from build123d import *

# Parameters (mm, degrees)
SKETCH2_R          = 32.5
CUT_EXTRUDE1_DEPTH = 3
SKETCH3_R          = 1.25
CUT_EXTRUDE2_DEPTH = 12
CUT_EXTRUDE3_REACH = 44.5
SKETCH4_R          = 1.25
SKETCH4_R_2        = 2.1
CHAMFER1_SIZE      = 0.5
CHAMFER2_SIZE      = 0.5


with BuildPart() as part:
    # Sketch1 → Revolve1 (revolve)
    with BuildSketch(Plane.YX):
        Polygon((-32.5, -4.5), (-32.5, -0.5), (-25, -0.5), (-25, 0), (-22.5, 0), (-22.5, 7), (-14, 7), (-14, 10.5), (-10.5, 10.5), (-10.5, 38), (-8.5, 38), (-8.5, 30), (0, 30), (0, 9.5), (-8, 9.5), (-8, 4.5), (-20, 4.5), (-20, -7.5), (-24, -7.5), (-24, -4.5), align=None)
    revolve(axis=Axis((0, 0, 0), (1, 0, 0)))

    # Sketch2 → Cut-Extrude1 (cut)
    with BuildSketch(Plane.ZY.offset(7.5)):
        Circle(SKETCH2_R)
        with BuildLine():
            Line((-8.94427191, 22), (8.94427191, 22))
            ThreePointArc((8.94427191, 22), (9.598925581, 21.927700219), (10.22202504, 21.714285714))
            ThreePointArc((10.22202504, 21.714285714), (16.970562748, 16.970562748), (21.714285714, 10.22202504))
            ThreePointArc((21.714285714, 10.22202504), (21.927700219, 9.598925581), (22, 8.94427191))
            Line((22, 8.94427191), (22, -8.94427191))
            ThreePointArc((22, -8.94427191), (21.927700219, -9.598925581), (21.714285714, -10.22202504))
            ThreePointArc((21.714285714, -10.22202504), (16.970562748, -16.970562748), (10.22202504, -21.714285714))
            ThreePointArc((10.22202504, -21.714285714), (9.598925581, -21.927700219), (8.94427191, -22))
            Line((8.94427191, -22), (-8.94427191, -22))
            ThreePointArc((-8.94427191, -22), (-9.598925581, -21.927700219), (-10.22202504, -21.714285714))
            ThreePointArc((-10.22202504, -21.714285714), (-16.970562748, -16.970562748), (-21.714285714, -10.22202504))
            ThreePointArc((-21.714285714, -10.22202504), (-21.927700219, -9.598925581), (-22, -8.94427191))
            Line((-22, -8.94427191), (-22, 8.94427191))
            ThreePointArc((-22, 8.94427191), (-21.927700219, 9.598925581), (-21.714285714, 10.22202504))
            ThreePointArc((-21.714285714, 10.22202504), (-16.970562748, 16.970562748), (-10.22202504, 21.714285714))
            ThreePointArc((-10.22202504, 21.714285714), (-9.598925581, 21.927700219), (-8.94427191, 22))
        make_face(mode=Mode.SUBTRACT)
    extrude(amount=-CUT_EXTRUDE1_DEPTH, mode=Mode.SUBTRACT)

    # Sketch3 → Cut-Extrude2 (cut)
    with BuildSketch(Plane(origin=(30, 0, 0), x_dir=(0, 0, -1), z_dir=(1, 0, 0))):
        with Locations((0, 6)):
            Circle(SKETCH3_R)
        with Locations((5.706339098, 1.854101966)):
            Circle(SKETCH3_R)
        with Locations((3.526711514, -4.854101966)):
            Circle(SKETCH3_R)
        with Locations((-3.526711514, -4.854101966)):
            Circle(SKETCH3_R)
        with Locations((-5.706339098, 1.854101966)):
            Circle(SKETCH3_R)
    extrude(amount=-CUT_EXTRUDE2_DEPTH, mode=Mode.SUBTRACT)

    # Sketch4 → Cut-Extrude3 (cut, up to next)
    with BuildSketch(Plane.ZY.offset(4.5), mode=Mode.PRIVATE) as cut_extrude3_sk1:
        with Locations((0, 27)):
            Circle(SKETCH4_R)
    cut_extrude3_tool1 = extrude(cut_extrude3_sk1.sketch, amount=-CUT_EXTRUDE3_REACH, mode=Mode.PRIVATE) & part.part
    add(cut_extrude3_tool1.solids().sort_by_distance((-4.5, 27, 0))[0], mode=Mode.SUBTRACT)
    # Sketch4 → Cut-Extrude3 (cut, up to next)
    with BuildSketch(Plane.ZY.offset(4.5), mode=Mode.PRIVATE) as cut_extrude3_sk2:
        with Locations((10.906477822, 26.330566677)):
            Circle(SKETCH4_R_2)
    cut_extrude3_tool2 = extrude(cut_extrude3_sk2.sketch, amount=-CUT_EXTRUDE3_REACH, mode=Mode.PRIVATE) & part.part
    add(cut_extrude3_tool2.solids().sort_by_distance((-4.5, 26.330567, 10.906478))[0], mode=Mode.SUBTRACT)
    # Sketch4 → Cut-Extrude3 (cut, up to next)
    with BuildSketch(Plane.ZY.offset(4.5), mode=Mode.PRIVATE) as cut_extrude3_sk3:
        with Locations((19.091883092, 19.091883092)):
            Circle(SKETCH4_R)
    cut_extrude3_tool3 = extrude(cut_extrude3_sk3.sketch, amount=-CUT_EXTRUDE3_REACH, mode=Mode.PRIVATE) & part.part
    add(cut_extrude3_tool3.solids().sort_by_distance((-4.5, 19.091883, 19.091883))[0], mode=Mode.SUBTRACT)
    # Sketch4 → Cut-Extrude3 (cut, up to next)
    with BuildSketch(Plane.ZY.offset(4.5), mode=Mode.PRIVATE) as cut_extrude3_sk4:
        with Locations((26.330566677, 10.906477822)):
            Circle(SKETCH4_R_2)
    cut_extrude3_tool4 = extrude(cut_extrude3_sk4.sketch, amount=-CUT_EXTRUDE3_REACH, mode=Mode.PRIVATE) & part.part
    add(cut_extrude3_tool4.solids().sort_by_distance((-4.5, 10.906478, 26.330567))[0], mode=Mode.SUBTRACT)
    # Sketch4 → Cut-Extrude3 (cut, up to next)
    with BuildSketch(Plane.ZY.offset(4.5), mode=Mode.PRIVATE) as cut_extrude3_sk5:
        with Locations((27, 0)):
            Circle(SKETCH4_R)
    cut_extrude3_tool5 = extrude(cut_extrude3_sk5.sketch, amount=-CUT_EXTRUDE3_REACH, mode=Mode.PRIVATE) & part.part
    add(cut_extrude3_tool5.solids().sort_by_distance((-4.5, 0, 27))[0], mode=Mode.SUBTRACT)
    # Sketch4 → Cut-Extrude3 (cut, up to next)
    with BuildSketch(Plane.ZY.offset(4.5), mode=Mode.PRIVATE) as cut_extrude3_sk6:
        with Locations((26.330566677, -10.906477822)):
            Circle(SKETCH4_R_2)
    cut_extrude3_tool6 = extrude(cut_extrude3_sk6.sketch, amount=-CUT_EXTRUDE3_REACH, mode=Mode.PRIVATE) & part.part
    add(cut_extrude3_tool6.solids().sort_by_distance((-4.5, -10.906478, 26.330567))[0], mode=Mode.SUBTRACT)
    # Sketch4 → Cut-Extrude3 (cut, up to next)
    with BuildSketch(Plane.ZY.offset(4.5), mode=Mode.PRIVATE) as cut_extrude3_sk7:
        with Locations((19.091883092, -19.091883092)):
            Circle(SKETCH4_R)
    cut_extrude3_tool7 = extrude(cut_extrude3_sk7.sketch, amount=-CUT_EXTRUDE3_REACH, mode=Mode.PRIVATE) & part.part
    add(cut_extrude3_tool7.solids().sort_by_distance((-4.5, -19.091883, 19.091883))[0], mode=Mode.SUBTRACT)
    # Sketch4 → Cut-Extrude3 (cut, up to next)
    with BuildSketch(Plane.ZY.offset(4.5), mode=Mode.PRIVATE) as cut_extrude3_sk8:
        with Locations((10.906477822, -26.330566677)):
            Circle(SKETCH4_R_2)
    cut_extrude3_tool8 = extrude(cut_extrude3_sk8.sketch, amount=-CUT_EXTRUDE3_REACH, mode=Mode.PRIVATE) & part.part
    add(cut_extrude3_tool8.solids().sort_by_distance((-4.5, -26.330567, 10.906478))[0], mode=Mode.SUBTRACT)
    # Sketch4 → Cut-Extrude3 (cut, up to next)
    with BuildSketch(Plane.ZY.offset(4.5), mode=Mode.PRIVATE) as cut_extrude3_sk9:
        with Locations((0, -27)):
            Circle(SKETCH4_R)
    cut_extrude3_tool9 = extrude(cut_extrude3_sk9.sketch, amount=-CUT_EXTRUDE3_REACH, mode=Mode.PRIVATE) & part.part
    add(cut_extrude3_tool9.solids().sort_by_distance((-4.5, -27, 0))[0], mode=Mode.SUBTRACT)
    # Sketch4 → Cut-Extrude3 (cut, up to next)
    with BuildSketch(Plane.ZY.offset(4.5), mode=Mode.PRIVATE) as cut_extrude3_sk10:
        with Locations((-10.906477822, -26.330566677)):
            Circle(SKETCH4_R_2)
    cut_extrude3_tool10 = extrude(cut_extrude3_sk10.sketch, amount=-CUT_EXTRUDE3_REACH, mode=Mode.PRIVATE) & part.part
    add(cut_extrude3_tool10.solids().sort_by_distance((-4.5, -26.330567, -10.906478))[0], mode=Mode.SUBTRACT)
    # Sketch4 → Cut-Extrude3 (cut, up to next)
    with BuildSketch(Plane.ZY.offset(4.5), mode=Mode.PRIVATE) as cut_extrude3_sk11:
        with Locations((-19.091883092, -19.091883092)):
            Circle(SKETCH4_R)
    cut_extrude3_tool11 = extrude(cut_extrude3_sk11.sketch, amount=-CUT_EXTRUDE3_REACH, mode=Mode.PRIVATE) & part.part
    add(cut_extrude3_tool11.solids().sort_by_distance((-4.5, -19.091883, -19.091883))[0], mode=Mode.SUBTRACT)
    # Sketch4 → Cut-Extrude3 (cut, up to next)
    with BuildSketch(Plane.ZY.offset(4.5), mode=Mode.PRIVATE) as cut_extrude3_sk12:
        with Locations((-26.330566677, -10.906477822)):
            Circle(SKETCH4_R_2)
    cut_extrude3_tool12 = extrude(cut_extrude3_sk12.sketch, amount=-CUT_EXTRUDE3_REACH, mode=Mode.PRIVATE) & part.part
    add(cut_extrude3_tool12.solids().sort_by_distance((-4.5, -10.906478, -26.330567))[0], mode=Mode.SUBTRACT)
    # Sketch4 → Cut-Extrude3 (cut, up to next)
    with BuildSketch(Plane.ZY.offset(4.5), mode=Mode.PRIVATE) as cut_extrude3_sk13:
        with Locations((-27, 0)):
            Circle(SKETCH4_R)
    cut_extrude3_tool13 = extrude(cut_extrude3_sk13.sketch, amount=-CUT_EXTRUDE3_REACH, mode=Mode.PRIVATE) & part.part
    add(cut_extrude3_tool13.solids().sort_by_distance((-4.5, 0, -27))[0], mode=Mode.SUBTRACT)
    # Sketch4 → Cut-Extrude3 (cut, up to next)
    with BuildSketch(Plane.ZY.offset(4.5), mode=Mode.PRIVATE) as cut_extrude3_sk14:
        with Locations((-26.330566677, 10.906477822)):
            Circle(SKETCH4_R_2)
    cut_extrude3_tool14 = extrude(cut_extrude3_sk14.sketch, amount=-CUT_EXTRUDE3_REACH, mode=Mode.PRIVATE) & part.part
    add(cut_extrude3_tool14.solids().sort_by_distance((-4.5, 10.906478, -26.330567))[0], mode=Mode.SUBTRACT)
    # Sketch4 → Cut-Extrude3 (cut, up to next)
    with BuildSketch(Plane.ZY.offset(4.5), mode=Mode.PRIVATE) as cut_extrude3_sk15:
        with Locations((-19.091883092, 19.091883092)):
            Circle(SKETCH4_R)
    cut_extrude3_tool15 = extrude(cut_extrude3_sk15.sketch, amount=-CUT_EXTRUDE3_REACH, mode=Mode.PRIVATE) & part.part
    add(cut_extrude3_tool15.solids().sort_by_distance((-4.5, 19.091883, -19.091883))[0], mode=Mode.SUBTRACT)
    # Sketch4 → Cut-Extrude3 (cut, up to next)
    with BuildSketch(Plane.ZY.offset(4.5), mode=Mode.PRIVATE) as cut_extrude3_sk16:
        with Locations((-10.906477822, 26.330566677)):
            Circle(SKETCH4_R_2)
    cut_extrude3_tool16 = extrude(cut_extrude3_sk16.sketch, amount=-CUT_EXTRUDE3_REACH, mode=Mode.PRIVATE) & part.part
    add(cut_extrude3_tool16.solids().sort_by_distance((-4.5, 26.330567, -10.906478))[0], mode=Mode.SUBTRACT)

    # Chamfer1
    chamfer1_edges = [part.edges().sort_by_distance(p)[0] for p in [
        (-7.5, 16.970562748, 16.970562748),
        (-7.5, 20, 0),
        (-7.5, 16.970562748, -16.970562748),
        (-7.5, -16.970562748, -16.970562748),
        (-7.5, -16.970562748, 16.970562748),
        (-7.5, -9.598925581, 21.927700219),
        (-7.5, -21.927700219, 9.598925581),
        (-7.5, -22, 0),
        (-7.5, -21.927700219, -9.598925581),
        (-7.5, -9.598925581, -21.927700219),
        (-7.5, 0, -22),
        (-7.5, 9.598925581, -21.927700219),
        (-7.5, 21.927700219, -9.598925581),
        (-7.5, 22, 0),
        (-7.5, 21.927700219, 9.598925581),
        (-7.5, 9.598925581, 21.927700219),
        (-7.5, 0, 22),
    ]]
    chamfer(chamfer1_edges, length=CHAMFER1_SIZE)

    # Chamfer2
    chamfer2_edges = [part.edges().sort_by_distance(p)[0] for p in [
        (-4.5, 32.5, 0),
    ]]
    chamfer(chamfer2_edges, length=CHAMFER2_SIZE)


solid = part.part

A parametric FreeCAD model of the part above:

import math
import FreeCAD as App
import Part
import Sketcher


def edges_at(feature, points):
    """Names of the edges that pass closest to the given points."""
    edges = feature.Shape.Edges
    near = lambda p: min(range(len(edges)), key=lambda i: edges[i].distToShape(Part.Vertex(*p))[0])
    return sorted({f"Edge{near(p) + 1}" for p in points})

doc = App.newDocument("Part")
body = doc.addObject("PartDesign::Body", "Body")

sketch1 = doc.addObject("Sketcher::SketchObject", "Sketch")
body.addObject(sketch1)
sketch1.AttachmentSupport = (doc.XY_Plane, [""])
sketch1.MapMode = "FlatFace"
sketch1.addGeometry([
    Part.LineSegment(App.Vector(-0.5, -32.5, 0), App.Vector(-4.5, -32.5, 0)),
    Part.LineSegment(App.Vector(-4.5, -32.5, 0), App.Vector(-4.5, -24, 0)),
    Part.LineSegment(App.Vector(-4.5, -24, 0), App.Vector(-7.5, -24, 0)),
    Part.LineSegment(App.Vector(-7.5, -24, 0), App.Vector(-7.5, -20, 0)),
    Part.LineSegment(App.Vector(-7.5, -20, 0), App.Vector(4.5, -20, 0)),
    Part.LineSegment(App.Vector(4.5, -20, 0), App.Vector(4.5, -8, 0)),
    Part.LineSegment(App.Vector(4.5, -8, 0), App.Vector(9.5, -8, 0)),
    Part.LineSegment(App.Vector(9.5, -8, 0), App.Vector(9.5, 0, 0)),
    Part.LineSegment(App.Vector(9.5, 0, 0), App.Vector(30, 0, 0)),
    Part.LineSegment(App.Vector(30, 0, 0), App.Vector(30, -8.5, 0)),
    Part.LineSegment(App.Vector(30, -8.5, 0), App.Vector(38, -8.5, 0)),
    Part.LineSegment(App.Vector(38, -8.5, 0), App.Vector(38, -10.5, 0)),
    Part.LineSegment(App.Vector(38, -10.5, 0), App.Vector(10.5, -10.5, 0)),
    Part.LineSegment(App.Vector(10.5, -10.5, 0), App.Vector(10.5, -14, 0)),
    Part.LineSegment(App.Vector(10.5, -14, 0), App.Vector(7, -14, 0)),
    Part.LineSegment(App.Vector(7, -14, 0), App.Vector(7, -22.5, 0)),
    Part.LineSegment(App.Vector(7, -22.5, 0), App.Vector(0, -22.5, 0)),
    Part.LineSegment(App.Vector(0, -22.5, 0), App.Vector(0, -25, 0)),
    Part.LineSegment(App.Vector(0, -25, 0), App.Vector(-0.5, -25, 0)),
    Part.LineSegment(App.Vector(-0.5, -25, 0), App.Vector(-0.5, -32.5, 0)),
], False)
sketch1.addConstraint([
    Sketcher.Constraint("Coincident", 0, 2, 1, 1),
    Sketcher.Constraint("Coincident", 1, 2, 2, 1),
    Sketcher.Constraint("Coincident", 2, 2, 3, 1),
    Sketcher.Constraint("Coincident", 3, 2, 4, 1),
    Sketcher.Constraint("Coincident", 4, 2, 5, 1),
    Sketcher.Constraint("Coincident", 5, 2, 6, 1),
    Sketcher.Constraint("Coincident", 6, 2, 7, 1),
    Sketcher.Constraint("Coincident", 7, 2, 8, 1),
    Sketcher.Constraint("Coincident", 8, 2, 9, 1),
    Sketcher.Constraint("Coincident", 9, 2, 10, 1),
    Sketcher.Constraint("Coincident", 10, 2, 11, 1),
    Sketcher.Constraint("Coincident", 11, 2, 12, 1),
    Sketcher.Constraint("Coincident", 12, 2, 13, 1),
    Sketcher.Constraint("Coincident", 13, 2, 14, 1),
    Sketcher.Constraint("Coincident", 14, 2, 15, 1),
    Sketcher.Constraint("Coincident", 15, 2, 16, 1),
    Sketcher.Constraint("Coincident", 16, 2, 17, 1),
    Sketcher.Constraint("Coincident", 17, 2, 18, 1),
    Sketcher.Constraint("Coincident", 18, 2, 19, 1),
    Sketcher.Constraint("Coincident", 19, 2, 0, 1),
    Sketcher.Constraint("Horizontal", 0),
    Sketcher.Constraint("Vertical", 1),
    Sketcher.Constraint("Horizontal", 2),
    Sketcher.Constraint("Vertical", 3),
    Sketcher.Constraint("Horizontal", 4),
    Sketcher.Constraint("Vertical", 5),
    Sketcher.Constraint("Horizontal", 6),
    Sketcher.Constraint("Vertical", 7),
    Sketcher.Constraint("Horizontal", 8),
    Sketcher.Constraint("Vertical", 9),
    Sketcher.Constraint("Horizontal", 10),
    Sketcher.Constraint("Vertical", 11),
    Sketcher.Constraint("Horizontal", 12),
    Sketcher.Constraint("Vertical", 13),
    Sketcher.Constraint("Horizontal", 14),
    Sketcher.Constraint("Vertical", 15),
    Sketcher.Constraint("Horizontal", 16),
    Sketcher.Constraint("Vertical", 17),
    Sketcher.Constraint("Horizontal", 18),
    Sketcher.Constraint("Vertical", 19),
    Sketcher.Constraint("PointOnObject", 7, 2, -1),
    Sketcher.Constraint("PointOnObject", 16, 2, -2),
    Sketcher.Constraint("Equal", 0, 3),
    Sketcher.Constraint("Equal", 4, 5),
    Sketcher.Constraint("Equal", 10, 7),
    Sketcher.Constraint("Equal", 1, 9),
    Sketcher.Constraint("Equal", 14, 13),
    Sketcher.Constraint("Equal", 9, 15),
    Sketcher.Constraint("DistanceX", 0, 2, 0, 1, 4.0),
    Sketcher.Constraint("DistanceX", 2, 2, 2, 1, 3.0),
    Sketcher.Constraint("DistanceX", 4, 1, 4, 2, 12.0),
    Sketcher.Constraint("DistanceX", 6, 1, 6, 2, 5.0),
    Sketcher.Constraint("DistanceX", 10, 1, 10, 2, 8.0),
    Sketcher.Constraint("DistanceX", 16, 2, 16, 1, 7.0),
    Sketcher.Constraint("DistanceY", 11, 2, 11, 1, 2.0),
    Sketcher.Constraint("DistanceX", 8, 1, 8, 2, 20.5),
    Sketcher.Constraint("DistanceX", 12, 2, 12, 1, 27.5),
    Sketcher.Constraint("DistanceX", 14, 2, 14, 1, 3.5),
    Sketcher.Constraint("DistanceY", 1, 1, 1, 2, 8.5),
    Sketcher.Constraint("DistanceY", 17, 2, 17, 1, 2.5),
])
revolution = doc.addObject("PartDesign::Revolution", "Revolution")
body.addObject(revolution)
revolution.Profile = sketch1
revolution.ReferenceAxis = (sketch1, ["H_Axis"])
revolution.Angle = 360

sketch2 = doc.addObject("Sketcher::SketchObject", "Sketch001")
body.addObject(sketch2)
sketch2.AttachmentSupport = (doc.YZ_Plane, [""])
sketch2.MapMode = "FlatFace"
sketch2.AttachmentOffset = App.Placement(App.Vector(0, 0, -7.5), App.Rotation())
sketch2.addGeometry([
    Part.Circle(App.Vector(0, 0, 0), App.Vector(0, 0, 1), 32.5),
    Part.ArcOfCircle(Part.Circle(App.Vector(19, -8.9, 0), App.Vector(0, 0, 1), 3), math.radians(-25), math.radians(0)),
    Part.LineSegment(App.Vector(22, -8.9, 0), App.Vector(22, 8.9, 0)),
    Part.ArcOfCircle(Part.Circle(App.Vector(19, 8.9, 0), App.Vector(0, 0, 1), 3), math.radians(0), math.radians(25)),
    Part.ArcOfCircle(Part.Circle(App.Vector(0, 0, 0), App.Vector(0, 0, 1), 24), math.radians(25), math.radians(65)),
    Part.ArcOfCircle(Part.Circle(App.Vector(8.9, 19, 0), App.Vector(0, 0, 1), 3), math.radians(65), math.radians(90)),
    Part.LineSegment(App.Vector(8.9, 22, 0), App.Vector(-8.9, 22, 0)),
    Part.ArcOfCircle(Part.Circle(App.Vector(-8.9, 19, 0), App.Vector(0, 0, 1), 3), math.radians(90), math.radians(115)),
    Part.ArcOfCircle(Part.Circle(App.Vector(0, 0, 0), App.Vector(0, 0, 1), 24), math.radians(115), math.radians(155)),
    Part.ArcOfCircle(Part.Circle(App.Vector(-19, 8.9, 0), App.Vector(0, 0, 1), 3), math.radians(155), math.radians(180)),
    Part.LineSegment(App.Vector(-22, 8.9, 0), App.Vector(-22, -8.9, 0)),
    Part.ArcOfCircle(Part.Circle(App.Vector(-19, -8.9, 0), App.Vector(0, 0, 1), 3), math.radians(180), math.radians(205)),
    Part.ArcOfCircle(Part.Circle(App.Vector(0, 0, 0), App.Vector(0, 0, 1), 24), math.radians(-155), math.radians(-115)),
    Part.ArcOfCircle(Part.Circle(App.Vector(-8.9, -19, 0), App.Vector(0, 0, 1), 3), math.radians(-115), math.radians(-90)),
    Part.LineSegment(App.Vector(-8.9, -22, 0), App.Vector(8.9, -22, 0)),
    Part.ArcOfCircle(Part.Circle(App.Vector(8.9, -19, 0), App.Vector(0, 0, 1), 3), math.radians(-90), math.radians(-65)),
    Part.ArcOfCircle(Part.Circle(App.Vector(0, 0, 0), App.Vector(0, 0, 1), 24), math.radians(-65), math.radians(-25)),
], False)
sketch2.addConstraint([
    Sketcher.Constraint("Tangent", 1, 2, 2, 1),
    Sketcher.Constraint("Tangent", 2, 2, 3, 1),
    Sketcher.Constraint("Tangent", 3, 2, 4, 1),
    Sketcher.Constraint("Tangent", 4, 2, 5, 1),
    Sketcher.Constraint("Tangent", 5, 2, 6, 1),
    Sketcher.Constraint("Tangent", 6, 2, 7, 1),
    Sketcher.Constraint("Tangent", 7, 2, 8, 1),
    Sketcher.Constraint("Tangent", 8, 2, 9, 1),
    Sketcher.Constraint("Tangent", 9, 2, 10, 1),
    Sketcher.Constraint("Tangent", 10, 2, 11, 1),
    Sketcher.Constraint("Tangent", 11, 2, 12, 1),
    Sketcher.Constraint("Tangent", 12, 2, 13, 1),
    Sketcher.Constraint("Tangent", 13, 2, 14, 1),
    Sketcher.Constraint("Tangent", 14, 2, 15, 1),
    Sketcher.Constraint("Tangent", 15, 2, 16, 1),
    Sketcher.Constraint("Tangent", 16, 2, 1, 1),
    Sketcher.Constraint("Vertical", 2),
    Sketcher.Constraint("Horizontal", 6),
    Sketcher.Constraint("Vertical", 10),
    Sketcher.Constraint("Horizontal", 14),
    Sketcher.Constraint("Coincident", 0, 3, -1, 1),
    Sketcher.Constraint("Coincident", 4, 3, -1, 1),
    Sketcher.Constraint("Coincident", 8, 3, -1, 1),
    Sketcher.Constraint("Coincident", 12, 3, -1, 1),
    Sketcher.Constraint("Coincident", 16, 3, -1, 1),
    Sketcher.Constraint("Equal", 1, 3),
    Sketcher.Constraint("Equal", 3, 5),
    Sketcher.Constraint("Equal", 5, 7),
    Sketcher.Constraint("Equal", 4, 8),
    Sketcher.Constraint("Equal", 7, 9),
    Sketcher.Constraint("Equal", 9, 11),
    Sketcher.Constraint("Equal", 8, 12),
    Sketcher.Constraint("Equal", 11, 13),
    Sketcher.Constraint("Equal", 13, 15),
    Sketcher.Constraint("Equal", 12, 16),
    Sketcher.Constraint("Horizontal", 3, 3, 9, 3),
    Sketcher.Constraint("Vertical", 7, 3, 13, 3),
    Sketcher.Constraint("Equal", 14, 2),
    Sketcher.Constraint("Diameter", 0, 65.0),
    Sketcher.Constraint("Radius", 1, 3.0),
    Sketcher.Constraint("Radius", 4, 24.0),
    Sketcher.Constraint("DistanceX", -1, 1, 1, 3, 19.0),
])
pocket1 = doc.addObject("PartDesign::Pocket", "Pocket")
body.addObject(pocket1)
pocket1.Profile = sketch2
pocket1.Length = 3
pocket1.Reversed = True

sketch3 = doc.addObject("Sketcher::SketchObject", "Sketch002")
body.addObject(sketch3)
sketch3.AttachmentSupport = (doc.YZ_Plane, [""])
sketch3.MapMode = "FlatFace"
sketch3.AttachmentOffset = App.Placement(App.Vector(0, 0, 30), App.Rotation())
sketch3.addGeometry([
    Part.Circle(App.Vector(6, 0, 0), App.Vector(0, 0, 1), 1.2),
    Part.Circle(App.Vector(1.9, -5.7, 0), App.Vector(0, 0, 1), 1.2),
    Part.Circle(App.Vector(-4.9, -3.5, 0), App.Vector(0, 0, 1), 1.2),
    Part.Circle(App.Vector(-4.9, 3.5, 0), App.Vector(0, 0, 1), 1.2),
    Part.Circle(App.Vector(1.9, 5.7, 0), App.Vector(0, 0, 1), 1.2),
], False)
sketch3.addConstraint([
    Sketcher.Constraint("Equal", 0, 1),
    Sketcher.Constraint("Equal", 1, 2),
    Sketcher.Constraint("Equal", 2, 3),
    Sketcher.Constraint("Equal", 3, 4),
    Sketcher.Constraint("Symmetric", 2, 3, 3, 3, -1),
    Sketcher.Constraint("Symmetric", 1, 3, 4, 3, -1),
    Sketcher.Constraint("PointOnObject", 0, 3, -1),
    Sketcher.Constraint("Diameter", 0, 2.5),
    Sketcher.Constraint("DistanceX", -1, 1, 0, 3, 6.0),
    Sketcher.Constraint("DistanceX", -1, 1, 1, 3, 1.854102),
    Sketcher.Constraint("DistanceX", 2, 3, -1, 1, 4.854102),
    Sketcher.Constraint("DistanceY", 1, 3, -1, 1, 5.706339),
    Sketcher.Constraint("DistanceY", 2, 3, -1, 1, 3.526712),
])
pocket2 = doc.addObject("PartDesign::Pocket", "Pocket001")
body.addObject(pocket2)
pocket2.Profile = sketch3
pocket2.Length = 12

sketch4 = doc.addObject("Sketcher::SketchObject", "Sketch003")
body.addObject(sketch4)
sketch4.AttachmentSupport = (doc.YZ_Plane, [""])
sketch4.MapMode = "FlatFace"
sketch4.AttachmentOffset = App.Placement(App.Vector(0, 0, -4.5), App.Rotation())
sketch4.addGeometry(Part.Circle(App.Vector(27, 0, 0), App.Vector(0, 0, 1), 1.2), False)
sketch4.addConstraint([
    Sketcher.Constraint("PointOnObject", 0, 3, -1),
    Sketcher.Constraint("Diameter", 0, 2.5),
    Sketcher.Constraint("DistanceX", -1, 1, 0, 3, 27.0),
])
pocket3 = doc.addObject("PartDesign::Pocket", "Pocket002")
body.addObject(pocket3)
pocket3.Profile = sketch4
pocket3.Type = "UpToFirst"
pocket3.Reversed = True

sketch5 = doc.addObject("Sketcher::SketchObject", "Sketch004")
body.addObject(sketch5)
sketch5.AttachmentSupport = (doc.YZ_Plane, [""])
sketch5.MapMode = "FlatFace"
sketch5.AttachmentOffset = App.Placement(App.Vector(0, 0, -4.5), App.Rotation())
sketch5.addGeometry(Part.Circle(App.Vector(26.3, 10.9, 0), App.Vector(0, 0, 1), 2.1), False)
sketch5.addConstraint([
    Sketcher.Constraint("Diameter", 0, 4.2),
    Sketcher.Constraint("DistanceX", -1, 1, 0, 3, 26.330567),
    Sketcher.Constraint("DistanceY", -1, 1, 0, 3, 10.906478),
])
pocket4 = doc.addObject("PartDesign::Pocket", "Pocket003")
body.addObject(pocket4)
pocket4.Profile = sketch5
pocket4.Type = "UpToFirst"
pocket4.Reversed = True

sketch6 = doc.addObject("Sketcher::SketchObject", "Sketch005")
body.addObject(sketch6)
sketch6.AttachmentSupport = (doc.YZ_Plane, [""])
sketch6.MapMode = "FlatFace"
sketch6.AttachmentOffset = App.Placement(App.Vector(0, 0, -4.5), App.Rotation())
sketch6.addGeometry(Part.Circle(App.Vector(19.1, 19.1, 0), App.Vector(0, 0, 1), 1.2), False)
sketch6.addConstraint([
    Sketcher.Constraint("Diameter", 0, 2.5),
    Sketcher.Constraint("DistanceX", -1, 1, 0, 3, 19.091883),
    Sketcher.Constraint("DistanceY", -1, 1, 0, 3, 19.091883),
])
pocket5 = doc.addObject("PartDesign::Pocket", "Pocket004")
body.addObject(pocket5)
pocket5.Profile = sketch6
pocket5.Type = "UpToFirst"
pocket5.Reversed = True

sketch7 = doc.addObject("Sketcher::SketchObject", "Sketch006")
body.addObject(sketch7)
sketch7.AttachmentSupport = (doc.YZ_Plane, [""])
sketch7.MapMode = "FlatFace"
sketch7.AttachmentOffset = App.Placement(App.Vector(0, 0, -4.5), App.Rotation())
sketch7.addGeometry(Part.Circle(App.Vector(10.9, 26.3, 0), App.Vector(0, 0, 1), 2.1), False)
sketch7.addConstraint([
    Sketcher.Constraint("Diameter", 0, 4.2),
    Sketcher.Constraint("DistanceX", -1, 1, 0, 3, 10.906478),
    Sketcher.Constraint("DistanceY", -1, 1, 0, 3, 26.330567),
])
pocket6 = doc.addObject("PartDesign::Pocket", "Pocket005")
body.addObject(pocket6)
pocket6.Profile = sketch7
pocket6.Type = "UpToFirst"
pocket6.Reversed = True

sketch8 = doc.addObject("Sketcher::SketchObject", "Sketch007")
body.addObject(sketch8)
sketch8.AttachmentSupport = (doc.YZ_Plane, [""])
sketch8.MapMode = "FlatFace"
sketch8.AttachmentOffset = App.Placement(App.Vector(0, 0, -4.5), App.Rotation())
sketch8.addGeometry(Part.Circle(App.Vector(0, 27, 0), App.Vector(0, 0, 1), 1.2), False)
sketch8.addConstraint([
    Sketcher.Constraint("PointOnObject", 0, 3, -2),
    Sketcher.Constraint("Diameter", 0, 2.5),
    Sketcher.Constraint("DistanceY", -1, 1, 0, 3, 27.0),
])
pocket7 = doc.addObject("PartDesign::Pocket", "Pocket006")
body.addObject(pocket7)
pocket7.Profile = sketch8
pocket7.Type = "UpToFirst"
pocket7.Reversed = True

sketch9 = doc.addObject("Sketcher::SketchObject", "Sketch008")
body.addObject(sketch9)
sketch9.AttachmentSupport = (doc.YZ_Plane, [""])
sketch9.MapMode = "FlatFace"
sketch9.AttachmentOffset = App.Placement(App.Vector(0, 0, -4.5), App.Rotation())
sketch9.addGeometry(Part.Circle(App.Vector(-10.9, 26.3, 0), App.Vector(0, 0, 1), 2.1), False)
sketch9.addConstraint([
    Sketcher.Constraint("Diameter", 0, 4.2),
    Sketcher.Constraint("DistanceX", 0, 3, -1, 1, 10.906478),
    Sketcher.Constraint("DistanceY", -1, 1, 0, 3, 26.330567),
])
pocket8 = doc.addObject("PartDesign::Pocket", "Pocket007")
body.addObject(pocket8)
pocket8.Profile = sketch9
pocket8.Type = "UpToFirst"
pocket8.Reversed = True

sketch10 = doc.addObject("Sketcher::SketchObject", "Sketch009")
body.addObject(sketch10)
sketch10.AttachmentSupport = (doc.YZ_Plane, [""])
sketch10.MapMode = "FlatFace"
sketch10.AttachmentOffset = App.Placement(App.Vector(0, 0, -4.5), App.Rotation())
sketch10.addGeometry(Part.Circle(App.Vector(-19.1, 19.1, 0), App.Vector(0, 0, 1), 1.2), False)
sketch10.addConstraint([
    Sketcher.Constraint("Diameter", 0, 2.5),
    Sketcher.Constraint("DistanceX", 0, 3, -1, 1, 19.091883),
    Sketcher.Constraint("DistanceY", -1, 1, 0, 3, 19.091883),
])
pocket9 = doc.addObject("PartDesign::Pocket", "Pocket008")
body.addObject(pocket9)
pocket9.Profile = sketch10
pocket9.Type = "UpToFirst"
pocket9.Reversed = True

sketch11 = doc.addObject("Sketcher::SketchObject", "Sketch010")
body.addObject(sketch11)
sketch11.AttachmentSupport = (doc.YZ_Plane, [""])
sketch11.MapMode = "FlatFace"
sketch11.AttachmentOffset = App.Placement(App.Vector(0, 0, -4.5), App.Rotation())
sketch11.addGeometry(Part.Circle(App.Vector(-26.3, 10.9, 0), App.Vector(0, 0, 1), 2.1), False)
sketch11.addConstraint([
    Sketcher.Constraint("Diameter", 0, 4.2),
    Sketcher.Constraint("DistanceX", 0, 3, -1, 1, 26.330567),
    Sketcher.Constraint("DistanceY", -1, 1, 0, 3, 10.906478),
])
pocket10 = doc.addObject("PartDesign::Pocket", "Pocket009")
body.addObject(pocket10)
pocket10.Profile = sketch11
pocket10.Type = "UpToFirst"
pocket10.Reversed = True

sketch12 = doc.addObject("Sketcher::SketchObject", "Sketch011")
body.addObject(sketch12)
sketch12.AttachmentSupport = (doc.YZ_Plane, [""])
sketch12.MapMode = "FlatFace"
sketch12.AttachmentOffset = App.Placement(App.Vector(0, 0, -4.5), App.Rotation())
sketch12.addGeometry(Part.Circle(App.Vector(-27, 0, 0), App.Vector(0, 0, 1), 1.2), False)
sketch12.addConstraint([
    Sketcher.Constraint("PointOnObject", 0, 3, -1),
    Sketcher.Constraint("Diameter", 0, 2.5),
    Sketcher.Constraint("DistanceX", 0, 3, -1, 1, 27.0),
])
pocket11 = doc.addObject("PartDesign::Pocket", "Pocket010")
body.addObject(pocket11)
pocket11.Profile = sketch12
pocket11.Type = "UpToFirst"
pocket11.Reversed = True

sketch13 = doc.addObject("Sketcher::SketchObject", "Sketch012")
body.addObject(sketch13)
sketch13.AttachmentSupport = (doc.YZ_Plane, [""])
sketch13.MapMode = "FlatFace"
sketch13.AttachmentOffset = App.Placement(App.Vector(0, 0, -4.5), App.Rotation())
sketch13.addGeometry(Part.Circle(App.Vector(-26.3, -10.9, 0), App.Vector(0, 0, 1), 2.1), False)
sketch13.addConstraint([
    Sketcher.Constraint("Diameter", 0, 4.2),
    Sketcher.Constraint("DistanceX", 0, 3, -1, 1, 26.330567),
    Sketcher.Constraint("DistanceY", 0, 3, -1, 1, 10.906478),
])
pocket12 = doc.addObject("PartDesign::Pocket", "Pocket011")
body.addObject(pocket12)
pocket12.Profile = sketch13
pocket12.Type = "UpToFirst"
pocket12.Reversed = True

sketch14 = doc.addObject("Sketcher::SketchObject", "Sketch013")
body.addObject(sketch14)
sketch14.AttachmentSupport = (doc.YZ_Plane, [""])
sketch14.MapMode = "FlatFace"
sketch14.AttachmentOffset = App.Placement(App.Vector(0, 0, -4.5), App.Rotation())
sketch14.addGeometry(Part.Circle(App.Vector(-19.1, -19.1, 0), App.Vector(0, 0, 1), 1.2), False)
sketch14.addConstraint([
    Sketcher.Constraint("Diameter", 0, 2.5),
    Sketcher.Constraint("DistanceX", 0, 3, -1, 1, 19.091883),
    Sketcher.Constraint("DistanceY", 0, 3, -1, 1, 19.091883),
])
pocket13 = doc.addObject("PartDesign::Pocket", "Pocket012")
body.addObject(pocket13)
pocket13.Profile = sketch14
pocket13.Type = "UpToFirst"
pocket13.Reversed = True

sketch15 = doc.addObject("Sketcher::SketchObject", "Sketch014")
body.addObject(sketch15)
sketch15.AttachmentSupport = (doc.YZ_Plane, [""])
sketch15.MapMode = "FlatFace"
sketch15.AttachmentOffset = App.Placement(App.Vector(0, 0, -4.5), App.Rotation())
sketch15.addGeometry(Part.Circle(App.Vector(-10.9, -26.3, 0), App.Vector(0, 0, 1), 2.1), False)
sketch15.addConstraint([
    Sketcher.Constraint("Diameter", 0, 4.2),
    Sketcher.Constraint("DistanceX", 0, 3, -1, 1, 10.906478),
    Sketcher.Constraint("DistanceY", 0, 3, -1, 1, 26.330567),
])
pocket14 = doc.addObject("PartDesign::Pocket", "Pocket013")
body.addObject(pocket14)
pocket14.Profile = sketch15
pocket14.Type = "UpToFirst"
pocket14.Reversed = True

sketch16 = doc.addObject("Sketcher::SketchObject", "Sketch015")
body.addObject(sketch16)
sketch16.AttachmentSupport = (doc.YZ_Plane, [""])
sketch16.MapMode = "FlatFace"
sketch16.AttachmentOffset = App.Placement(App.Vector(0, 0, -4.5), App.Rotation())
sketch16.addGeometry(Part.Circle(App.Vector(0, -27, 0), App.Vector(0, 0, 1), 1.2), False)
sketch16.addConstraint([
    Sketcher.Constraint("PointOnObject", 0, 3, -2),
    Sketcher.Constraint("Diameter", 0, 2.5),
    Sketcher.Constraint("DistanceY", 0, 3, -1, 1, 27.0),
])
pocket15 = doc.addObject("PartDesign::Pocket", "Pocket014")
body.addObject(pocket15)
pocket15.Profile = sketch16
pocket15.Type = "UpToFirst"
pocket15.Reversed = True

sketch17 = doc.addObject("Sketcher::SketchObject", "Sketch016")
body.addObject(sketch17)
sketch17.AttachmentSupport = (doc.YZ_Plane, [""])
sketch17.MapMode = "FlatFace"
sketch17.AttachmentOffset = App.Placement(App.Vector(0, 0, -4.5), App.Rotation())
sketch17.addGeometry(Part.Circle(App.Vector(10.9, -26.3, 0), App.Vector(0, 0, 1), 2.1), False)
sketch17.addConstraint([
    Sketcher.Constraint("Diameter", 0, 4.2),
    Sketcher.Constraint("DistanceX", -1, 1, 0, 3, 10.906478),
    Sketcher.Constraint("DistanceY", 0, 3, -1, 1, 26.330567),
])
pocket16 = doc.addObject("PartDesign::Pocket", "Pocket015")
body.addObject(pocket16)
pocket16.Profile = sketch17
pocket16.Type = "UpToFirst"
pocket16.Reversed = True

sketch18 = doc.addObject("Sketcher::SketchObject", "Sketch017")
body.addObject(sketch18)
sketch18.AttachmentSupport = (doc.YZ_Plane, [""])
sketch18.MapMode = "FlatFace"
sketch18.AttachmentOffset = App.Placement(App.Vector(0, 0, -4.5), App.Rotation())
sketch18.addGeometry(Part.Circle(App.Vector(19.1, -19.1, 0), App.Vector(0, 0, 1), 1.2), False)
sketch18.addConstraint([
    Sketcher.Constraint("Diameter", 0, 2.5),
    Sketcher.Constraint("DistanceX", -1, 1, 0, 3, 19.091883),
    Sketcher.Constraint("DistanceY", 0, 3, -1, 1, 19.091883),
])
pocket17 = doc.addObject("PartDesign::Pocket", "Pocket016")
body.addObject(pocket17)
pocket17.Profile = sketch18
pocket17.Type = "UpToFirst"
pocket17.Reversed = True

sketch19 = doc.addObject("Sketcher::SketchObject", "Sketch018")
body.addObject(sketch19)
sketch19.AttachmentSupport = (doc.YZ_Plane, [""])
sketch19.MapMode = "FlatFace"
sketch19.AttachmentOffset = App.Placement(App.Vector(0, 0, -4.5), App.Rotation())
sketch19.addGeometry(Part.Circle(App.Vector(26.3, -10.9, 0), App.Vector(0, 0, 1), 2.1), False)
sketch19.addConstraint([
    Sketcher.Constraint("Diameter", 0, 4.2),
    Sketcher.Constraint("DistanceX", -1, 1, 0, 3, 26.330567),
    Sketcher.Constraint("DistanceY", 0, 3, -1, 1, 10.906478),
])
pocket18 = doc.addObject("PartDesign::Pocket", "Pocket017")
body.addObject(pocket18)
pocket18.Profile = sketch19
pocket18.Type = "UpToFirst"
pocket18.Reversed = True
doc.recompute()

chamfer = doc.addObject("PartDesign::Chamfer", "Chamfer")
body.addObject(chamfer)
chamfer.Base = (pocket18, edges_at(pocket18, [
    (-7.5, 16.971, 16.971),
    (-7.5, 20, 0),
    (-7.5, 16.971, -16.971),
    (-7.5, -16.971, -16.971),
    (-7.5, -16.971, 16.971),
    (-7.5, -9.599, 21.928),
    (-7.5, -21.928, 9.599),
    (-7.5, -22, 0),
    (-7.5, -21.928, -9.599),
    (-7.5, -9.599, -21.928),
    (-7.5, 0, -22),
    (-7.5, 9.599, -21.928),
    (-7.5, 21.928, -9.599),
    (-7.5, 22, 0),
    (-7.5, 21.928, 9.599),
    (-7.5, 9.599, 21.928),
    (-7.5, 0, 22),
]))
chamfer.Size = 0.5
doc.recompute()

chamfer2 = doc.addObject("PartDesign::Chamfer", "Chamfer001")
body.addObject(chamfer2)
chamfer2.Base = (chamfer, edges_at(chamfer, [(-4.5, 32.5, 0)]))
chamfer2.Size = 0.5

doc.recompute()
